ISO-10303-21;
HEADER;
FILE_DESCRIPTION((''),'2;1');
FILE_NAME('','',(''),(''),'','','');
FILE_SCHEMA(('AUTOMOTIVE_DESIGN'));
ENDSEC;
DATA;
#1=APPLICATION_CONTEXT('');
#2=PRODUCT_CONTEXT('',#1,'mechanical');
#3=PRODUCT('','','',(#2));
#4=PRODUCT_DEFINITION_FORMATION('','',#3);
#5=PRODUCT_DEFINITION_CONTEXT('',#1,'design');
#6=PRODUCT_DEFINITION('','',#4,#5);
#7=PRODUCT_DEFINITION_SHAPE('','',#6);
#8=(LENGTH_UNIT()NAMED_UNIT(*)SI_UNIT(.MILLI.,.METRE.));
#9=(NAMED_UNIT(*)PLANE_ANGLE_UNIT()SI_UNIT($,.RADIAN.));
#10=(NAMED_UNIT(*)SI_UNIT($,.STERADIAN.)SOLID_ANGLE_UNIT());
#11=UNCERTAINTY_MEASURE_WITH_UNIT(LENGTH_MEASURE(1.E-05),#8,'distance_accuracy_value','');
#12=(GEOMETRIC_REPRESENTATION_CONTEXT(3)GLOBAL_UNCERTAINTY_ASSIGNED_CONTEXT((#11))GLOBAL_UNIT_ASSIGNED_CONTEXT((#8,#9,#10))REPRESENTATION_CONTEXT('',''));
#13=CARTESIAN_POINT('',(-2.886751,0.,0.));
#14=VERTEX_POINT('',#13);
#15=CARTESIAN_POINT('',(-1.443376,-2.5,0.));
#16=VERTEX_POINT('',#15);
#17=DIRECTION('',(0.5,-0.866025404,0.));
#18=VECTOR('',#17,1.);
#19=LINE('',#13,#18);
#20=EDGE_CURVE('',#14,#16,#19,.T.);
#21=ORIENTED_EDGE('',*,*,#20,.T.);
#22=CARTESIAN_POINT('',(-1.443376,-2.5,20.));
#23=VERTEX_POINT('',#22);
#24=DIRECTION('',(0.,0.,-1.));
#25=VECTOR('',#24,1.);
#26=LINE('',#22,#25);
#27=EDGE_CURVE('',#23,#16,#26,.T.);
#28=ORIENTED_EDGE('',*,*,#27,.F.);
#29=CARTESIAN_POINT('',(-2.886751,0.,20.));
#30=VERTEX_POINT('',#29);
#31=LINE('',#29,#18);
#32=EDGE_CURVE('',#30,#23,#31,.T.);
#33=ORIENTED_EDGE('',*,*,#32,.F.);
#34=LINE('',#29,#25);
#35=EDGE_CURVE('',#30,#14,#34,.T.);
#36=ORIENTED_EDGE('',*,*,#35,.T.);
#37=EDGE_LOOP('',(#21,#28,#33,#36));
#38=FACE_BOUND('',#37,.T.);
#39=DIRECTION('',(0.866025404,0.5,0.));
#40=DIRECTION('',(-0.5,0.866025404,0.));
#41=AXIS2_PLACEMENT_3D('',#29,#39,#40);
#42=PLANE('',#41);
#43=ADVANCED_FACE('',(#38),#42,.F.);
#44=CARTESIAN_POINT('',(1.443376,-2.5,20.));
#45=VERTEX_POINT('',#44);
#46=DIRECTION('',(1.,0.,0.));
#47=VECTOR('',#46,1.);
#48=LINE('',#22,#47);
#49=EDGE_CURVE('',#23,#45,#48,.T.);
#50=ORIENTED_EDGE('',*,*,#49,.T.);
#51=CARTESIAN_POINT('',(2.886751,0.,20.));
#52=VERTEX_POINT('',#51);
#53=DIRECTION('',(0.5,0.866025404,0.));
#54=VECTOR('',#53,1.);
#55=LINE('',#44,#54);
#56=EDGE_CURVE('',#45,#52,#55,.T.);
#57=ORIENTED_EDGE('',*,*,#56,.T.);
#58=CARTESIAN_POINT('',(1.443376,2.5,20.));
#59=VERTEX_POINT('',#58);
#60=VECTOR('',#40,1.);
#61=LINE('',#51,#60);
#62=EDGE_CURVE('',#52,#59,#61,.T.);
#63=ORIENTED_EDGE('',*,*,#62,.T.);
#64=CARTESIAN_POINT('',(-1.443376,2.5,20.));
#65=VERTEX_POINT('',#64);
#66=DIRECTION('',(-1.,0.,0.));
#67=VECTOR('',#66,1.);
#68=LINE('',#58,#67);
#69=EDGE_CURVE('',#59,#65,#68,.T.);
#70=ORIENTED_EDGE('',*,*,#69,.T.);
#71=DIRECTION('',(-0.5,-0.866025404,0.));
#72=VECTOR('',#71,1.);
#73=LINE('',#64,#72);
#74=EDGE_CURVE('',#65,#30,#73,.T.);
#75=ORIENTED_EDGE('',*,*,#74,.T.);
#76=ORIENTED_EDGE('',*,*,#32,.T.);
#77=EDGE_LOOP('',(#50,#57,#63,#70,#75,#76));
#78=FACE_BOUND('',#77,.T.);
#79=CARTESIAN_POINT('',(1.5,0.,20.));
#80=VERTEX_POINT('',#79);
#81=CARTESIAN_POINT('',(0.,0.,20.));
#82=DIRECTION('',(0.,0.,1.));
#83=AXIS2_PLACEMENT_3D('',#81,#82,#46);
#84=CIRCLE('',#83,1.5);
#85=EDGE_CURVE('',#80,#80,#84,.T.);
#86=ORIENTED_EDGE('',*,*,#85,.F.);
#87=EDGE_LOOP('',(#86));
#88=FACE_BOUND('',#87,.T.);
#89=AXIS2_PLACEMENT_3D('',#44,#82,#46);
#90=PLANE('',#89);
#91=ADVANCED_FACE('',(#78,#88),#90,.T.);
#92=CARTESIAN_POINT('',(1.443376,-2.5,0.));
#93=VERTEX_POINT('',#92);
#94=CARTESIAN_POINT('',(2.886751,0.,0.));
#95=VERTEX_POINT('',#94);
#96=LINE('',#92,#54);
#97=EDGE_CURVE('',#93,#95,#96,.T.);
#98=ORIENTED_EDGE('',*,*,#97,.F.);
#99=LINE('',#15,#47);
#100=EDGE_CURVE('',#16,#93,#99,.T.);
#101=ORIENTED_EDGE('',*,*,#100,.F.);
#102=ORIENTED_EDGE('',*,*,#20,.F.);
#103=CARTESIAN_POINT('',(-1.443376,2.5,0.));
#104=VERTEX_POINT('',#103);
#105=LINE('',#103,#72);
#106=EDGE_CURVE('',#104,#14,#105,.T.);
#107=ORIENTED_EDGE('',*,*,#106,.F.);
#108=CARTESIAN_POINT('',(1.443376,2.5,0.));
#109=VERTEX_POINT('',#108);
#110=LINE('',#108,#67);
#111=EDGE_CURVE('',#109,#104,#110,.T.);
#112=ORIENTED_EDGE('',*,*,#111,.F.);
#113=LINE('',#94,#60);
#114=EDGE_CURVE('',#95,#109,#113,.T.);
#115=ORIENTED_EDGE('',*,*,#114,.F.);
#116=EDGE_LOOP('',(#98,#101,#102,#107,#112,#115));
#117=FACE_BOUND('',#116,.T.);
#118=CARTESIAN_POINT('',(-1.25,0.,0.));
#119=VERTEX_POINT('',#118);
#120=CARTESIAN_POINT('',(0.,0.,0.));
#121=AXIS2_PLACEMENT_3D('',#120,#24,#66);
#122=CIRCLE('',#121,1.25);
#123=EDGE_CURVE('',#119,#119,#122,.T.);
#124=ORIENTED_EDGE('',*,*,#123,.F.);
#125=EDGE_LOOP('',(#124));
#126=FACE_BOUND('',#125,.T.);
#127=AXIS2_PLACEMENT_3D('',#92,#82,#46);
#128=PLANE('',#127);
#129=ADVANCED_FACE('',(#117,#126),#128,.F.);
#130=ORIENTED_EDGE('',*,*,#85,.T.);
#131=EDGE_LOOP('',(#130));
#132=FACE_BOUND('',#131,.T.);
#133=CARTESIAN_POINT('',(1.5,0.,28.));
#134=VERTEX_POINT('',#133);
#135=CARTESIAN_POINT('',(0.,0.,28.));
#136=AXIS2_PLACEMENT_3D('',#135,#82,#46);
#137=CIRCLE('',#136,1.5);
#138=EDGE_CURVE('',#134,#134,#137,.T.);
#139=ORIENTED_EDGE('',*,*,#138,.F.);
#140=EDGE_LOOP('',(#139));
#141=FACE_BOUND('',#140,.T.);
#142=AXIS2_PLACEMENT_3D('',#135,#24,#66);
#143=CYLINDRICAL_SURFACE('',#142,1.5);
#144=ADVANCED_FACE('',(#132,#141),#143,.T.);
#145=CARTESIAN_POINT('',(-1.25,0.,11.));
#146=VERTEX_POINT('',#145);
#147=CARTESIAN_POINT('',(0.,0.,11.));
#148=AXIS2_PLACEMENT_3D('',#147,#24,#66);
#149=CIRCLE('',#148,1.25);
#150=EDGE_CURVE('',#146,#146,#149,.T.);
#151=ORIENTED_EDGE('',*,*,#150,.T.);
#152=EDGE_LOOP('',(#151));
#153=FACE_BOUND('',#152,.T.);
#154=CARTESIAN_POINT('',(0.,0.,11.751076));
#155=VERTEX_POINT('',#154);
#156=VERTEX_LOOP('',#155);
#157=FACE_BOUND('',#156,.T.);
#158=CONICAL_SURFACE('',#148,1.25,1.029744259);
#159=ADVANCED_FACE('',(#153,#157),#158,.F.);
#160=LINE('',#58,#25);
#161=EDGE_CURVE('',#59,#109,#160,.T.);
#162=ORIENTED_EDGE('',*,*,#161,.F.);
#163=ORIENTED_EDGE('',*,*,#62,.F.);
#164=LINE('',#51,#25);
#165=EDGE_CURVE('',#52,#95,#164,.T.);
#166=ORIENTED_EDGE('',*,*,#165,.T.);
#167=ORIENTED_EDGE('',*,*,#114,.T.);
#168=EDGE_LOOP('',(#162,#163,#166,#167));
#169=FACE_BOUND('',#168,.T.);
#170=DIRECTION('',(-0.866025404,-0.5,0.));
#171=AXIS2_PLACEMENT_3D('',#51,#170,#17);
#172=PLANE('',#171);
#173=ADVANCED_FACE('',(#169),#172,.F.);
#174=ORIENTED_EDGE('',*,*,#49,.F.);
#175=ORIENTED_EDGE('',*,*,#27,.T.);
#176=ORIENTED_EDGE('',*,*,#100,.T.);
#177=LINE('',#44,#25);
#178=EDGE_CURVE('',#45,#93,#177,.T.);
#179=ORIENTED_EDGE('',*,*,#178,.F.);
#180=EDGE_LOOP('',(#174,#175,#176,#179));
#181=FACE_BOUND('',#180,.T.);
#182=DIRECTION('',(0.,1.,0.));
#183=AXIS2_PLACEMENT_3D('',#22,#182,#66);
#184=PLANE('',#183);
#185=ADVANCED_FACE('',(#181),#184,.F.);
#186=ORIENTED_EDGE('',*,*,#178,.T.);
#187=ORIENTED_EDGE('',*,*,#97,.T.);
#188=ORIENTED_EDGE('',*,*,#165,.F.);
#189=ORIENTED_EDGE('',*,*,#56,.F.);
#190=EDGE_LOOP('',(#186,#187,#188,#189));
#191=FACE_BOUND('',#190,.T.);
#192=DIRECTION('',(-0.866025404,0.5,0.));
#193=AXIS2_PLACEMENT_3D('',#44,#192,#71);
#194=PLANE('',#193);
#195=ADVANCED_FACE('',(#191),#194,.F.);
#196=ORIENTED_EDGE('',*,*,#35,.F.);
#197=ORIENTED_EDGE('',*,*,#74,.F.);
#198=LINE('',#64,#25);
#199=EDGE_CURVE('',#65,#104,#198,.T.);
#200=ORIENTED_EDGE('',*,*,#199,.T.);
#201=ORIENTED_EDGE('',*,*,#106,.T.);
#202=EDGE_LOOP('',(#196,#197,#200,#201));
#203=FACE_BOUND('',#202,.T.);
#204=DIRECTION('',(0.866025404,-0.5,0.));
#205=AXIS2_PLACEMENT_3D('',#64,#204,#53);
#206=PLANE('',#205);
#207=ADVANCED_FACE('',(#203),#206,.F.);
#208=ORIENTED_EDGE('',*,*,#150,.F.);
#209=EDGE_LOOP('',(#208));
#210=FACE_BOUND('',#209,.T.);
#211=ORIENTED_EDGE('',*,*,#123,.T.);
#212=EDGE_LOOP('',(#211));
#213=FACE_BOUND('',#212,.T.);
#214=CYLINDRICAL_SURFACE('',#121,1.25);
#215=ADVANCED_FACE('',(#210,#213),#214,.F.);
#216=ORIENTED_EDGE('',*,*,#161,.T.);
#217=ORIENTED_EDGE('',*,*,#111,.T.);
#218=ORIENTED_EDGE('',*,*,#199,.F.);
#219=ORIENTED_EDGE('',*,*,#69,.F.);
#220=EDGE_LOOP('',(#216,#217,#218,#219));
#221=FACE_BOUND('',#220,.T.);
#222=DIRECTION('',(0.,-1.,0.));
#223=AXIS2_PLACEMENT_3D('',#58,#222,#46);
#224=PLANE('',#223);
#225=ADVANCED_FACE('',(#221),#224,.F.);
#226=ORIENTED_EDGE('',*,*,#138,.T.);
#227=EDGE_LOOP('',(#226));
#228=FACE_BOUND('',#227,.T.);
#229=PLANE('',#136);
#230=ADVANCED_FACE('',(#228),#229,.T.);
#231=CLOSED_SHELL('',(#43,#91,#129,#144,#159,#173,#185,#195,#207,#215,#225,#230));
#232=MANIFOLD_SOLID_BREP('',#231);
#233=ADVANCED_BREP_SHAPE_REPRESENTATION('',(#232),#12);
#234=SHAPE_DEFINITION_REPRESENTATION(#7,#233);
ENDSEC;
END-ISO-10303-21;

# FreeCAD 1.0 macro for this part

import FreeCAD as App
import Part
import Sketcher
Q = App.Units.Quantity


def add_polygon(sketch, points):
    """Adds a closed chain of lines whose ends are joined by coincident constraints."""
    first, n = sketch.GeometryCount, len(points)
    for a, b in zip(points, points[1:] + points[:1]):
        sketch.addGeometry(Part.LineSegment(App.Vector(*a, 0), App.Vector(*b, 0)), False)
    for i in range(n):
        sketch.addConstraint(Sketcher.Constraint("Coincident", first + i, 2, first + (i + 1) % n, 1))

doc = App.newDocument("Part")
body = doc.addObject("PartDesign::Body", "Body")

# Sketch on XY plane
sketch1 = body.newObject("Sketcher::SketchObject", "Sketch")
sketch1.AttachmentSupport = (doc.getObject("XY_Plane"), [""])
sketch1.MapMode = "FlatFace"
add_polygon(sketch1, [(1.443376, -2.5), (2.886751, 0), (1.443376, 2.5), (-1.443376, 2.5), (-2.886751, 0), (-1.443376, -2.5)])  # lines 0-5
sketch1.addConstraint(Sketcher.Constraint("Horizontal", 2))
sketch1.addConstraint(Sketcher.Constraint("Horizontal", 5))
sketch1.addConstraint(Sketcher.Constraint("Symmetric", 0, 2, 3, 2, -1, 1))
sketch1.addConstraint(Sketcher.Constraint("Symmetric", 1, 2, 4, 2, -1, 1))
sketch1.addConstraint(Sketcher.Constraint("PointOnObject", 0, 2, -1))
sketch1.addConstraint(Sketcher.Constraint("Parallel", 0, 3))
sketch1.addConstraint(Sketcher.Constraint("Vertical", 2, 2, 4, 2))
sketch1.addConstraint(Sketcher.Constraint("Angle", 0, Q("60 deg")))
sketch1.addConstraint(Sketcher.Constraint("DistanceY", 4, 2, 2, 2, 5.0))
sketch1.addConstraint(Sketcher.Constraint("DistanceX", 2, 2, 2, 1, 2.886751))
pad1 = body.newObject("PartDesign::Pad", "Pad")
pad1.Profile = sketch1
pad1.Length = 20

# Sketch on XY plane
sketch2 = body.newObject("Sketcher::SketchObject", "Sketch001")
sketch2.AttachmentSupport = (doc.getObject("XY_Plane"), [""])
sketch2.MapMode = "FlatFace"
sketch2.AttachmentOffset = App.Placement(App.Vector(0, 0, 20), App.Rotation())
sketch2.addGeometry(Part.Circle(App.Vector(0, 0, 0), App.Vector(0, 0, 1), 1.5), False)
sketch2.addConstraint(Sketcher.Constraint("Coincident", 0, 3, -1, 1))
sketch2.addConstraint(Sketcher.Constraint("Diameter", 0, 3.0))
pad2 = body.newObject("PartDesign::Pad", "Pad001")
pad2.Profile = sketch2
pad2.Length = 8

# Sketch on XY plane
sketch3 = body.newObject("Sketcher::SketchObject", "Sketch002")
sketch3.AttachmentSupport = (doc.getObject("XY_Plane"), [""])
sketch3.MapMode = "FlatFace"
sketch3.addGeometry(Part.Circle(App.Vector(0, 0, 0), App.Vector(0, 0, 1), 1.25), False)
sketch3.addConstraint(Sketcher.Constraint("Coincident", 0, 3, -1, 1))
sketch3.addConstraint(Sketcher.Constraint("Diameter", 0, 2.5))
doc.recompute()
hole = body.newObject("PartDesign::Hole", "Hole")
hole.Profile = sketch3
hole.ThreadType = "None"
hole.Diameter = 2.5
hole.DepthType = "Dimension"
hole.Depth = 11
hole.DrillPoint = "Angled"
hole.DrillPointAngle = 118
hole.Reversed = True

doc.recompute()
